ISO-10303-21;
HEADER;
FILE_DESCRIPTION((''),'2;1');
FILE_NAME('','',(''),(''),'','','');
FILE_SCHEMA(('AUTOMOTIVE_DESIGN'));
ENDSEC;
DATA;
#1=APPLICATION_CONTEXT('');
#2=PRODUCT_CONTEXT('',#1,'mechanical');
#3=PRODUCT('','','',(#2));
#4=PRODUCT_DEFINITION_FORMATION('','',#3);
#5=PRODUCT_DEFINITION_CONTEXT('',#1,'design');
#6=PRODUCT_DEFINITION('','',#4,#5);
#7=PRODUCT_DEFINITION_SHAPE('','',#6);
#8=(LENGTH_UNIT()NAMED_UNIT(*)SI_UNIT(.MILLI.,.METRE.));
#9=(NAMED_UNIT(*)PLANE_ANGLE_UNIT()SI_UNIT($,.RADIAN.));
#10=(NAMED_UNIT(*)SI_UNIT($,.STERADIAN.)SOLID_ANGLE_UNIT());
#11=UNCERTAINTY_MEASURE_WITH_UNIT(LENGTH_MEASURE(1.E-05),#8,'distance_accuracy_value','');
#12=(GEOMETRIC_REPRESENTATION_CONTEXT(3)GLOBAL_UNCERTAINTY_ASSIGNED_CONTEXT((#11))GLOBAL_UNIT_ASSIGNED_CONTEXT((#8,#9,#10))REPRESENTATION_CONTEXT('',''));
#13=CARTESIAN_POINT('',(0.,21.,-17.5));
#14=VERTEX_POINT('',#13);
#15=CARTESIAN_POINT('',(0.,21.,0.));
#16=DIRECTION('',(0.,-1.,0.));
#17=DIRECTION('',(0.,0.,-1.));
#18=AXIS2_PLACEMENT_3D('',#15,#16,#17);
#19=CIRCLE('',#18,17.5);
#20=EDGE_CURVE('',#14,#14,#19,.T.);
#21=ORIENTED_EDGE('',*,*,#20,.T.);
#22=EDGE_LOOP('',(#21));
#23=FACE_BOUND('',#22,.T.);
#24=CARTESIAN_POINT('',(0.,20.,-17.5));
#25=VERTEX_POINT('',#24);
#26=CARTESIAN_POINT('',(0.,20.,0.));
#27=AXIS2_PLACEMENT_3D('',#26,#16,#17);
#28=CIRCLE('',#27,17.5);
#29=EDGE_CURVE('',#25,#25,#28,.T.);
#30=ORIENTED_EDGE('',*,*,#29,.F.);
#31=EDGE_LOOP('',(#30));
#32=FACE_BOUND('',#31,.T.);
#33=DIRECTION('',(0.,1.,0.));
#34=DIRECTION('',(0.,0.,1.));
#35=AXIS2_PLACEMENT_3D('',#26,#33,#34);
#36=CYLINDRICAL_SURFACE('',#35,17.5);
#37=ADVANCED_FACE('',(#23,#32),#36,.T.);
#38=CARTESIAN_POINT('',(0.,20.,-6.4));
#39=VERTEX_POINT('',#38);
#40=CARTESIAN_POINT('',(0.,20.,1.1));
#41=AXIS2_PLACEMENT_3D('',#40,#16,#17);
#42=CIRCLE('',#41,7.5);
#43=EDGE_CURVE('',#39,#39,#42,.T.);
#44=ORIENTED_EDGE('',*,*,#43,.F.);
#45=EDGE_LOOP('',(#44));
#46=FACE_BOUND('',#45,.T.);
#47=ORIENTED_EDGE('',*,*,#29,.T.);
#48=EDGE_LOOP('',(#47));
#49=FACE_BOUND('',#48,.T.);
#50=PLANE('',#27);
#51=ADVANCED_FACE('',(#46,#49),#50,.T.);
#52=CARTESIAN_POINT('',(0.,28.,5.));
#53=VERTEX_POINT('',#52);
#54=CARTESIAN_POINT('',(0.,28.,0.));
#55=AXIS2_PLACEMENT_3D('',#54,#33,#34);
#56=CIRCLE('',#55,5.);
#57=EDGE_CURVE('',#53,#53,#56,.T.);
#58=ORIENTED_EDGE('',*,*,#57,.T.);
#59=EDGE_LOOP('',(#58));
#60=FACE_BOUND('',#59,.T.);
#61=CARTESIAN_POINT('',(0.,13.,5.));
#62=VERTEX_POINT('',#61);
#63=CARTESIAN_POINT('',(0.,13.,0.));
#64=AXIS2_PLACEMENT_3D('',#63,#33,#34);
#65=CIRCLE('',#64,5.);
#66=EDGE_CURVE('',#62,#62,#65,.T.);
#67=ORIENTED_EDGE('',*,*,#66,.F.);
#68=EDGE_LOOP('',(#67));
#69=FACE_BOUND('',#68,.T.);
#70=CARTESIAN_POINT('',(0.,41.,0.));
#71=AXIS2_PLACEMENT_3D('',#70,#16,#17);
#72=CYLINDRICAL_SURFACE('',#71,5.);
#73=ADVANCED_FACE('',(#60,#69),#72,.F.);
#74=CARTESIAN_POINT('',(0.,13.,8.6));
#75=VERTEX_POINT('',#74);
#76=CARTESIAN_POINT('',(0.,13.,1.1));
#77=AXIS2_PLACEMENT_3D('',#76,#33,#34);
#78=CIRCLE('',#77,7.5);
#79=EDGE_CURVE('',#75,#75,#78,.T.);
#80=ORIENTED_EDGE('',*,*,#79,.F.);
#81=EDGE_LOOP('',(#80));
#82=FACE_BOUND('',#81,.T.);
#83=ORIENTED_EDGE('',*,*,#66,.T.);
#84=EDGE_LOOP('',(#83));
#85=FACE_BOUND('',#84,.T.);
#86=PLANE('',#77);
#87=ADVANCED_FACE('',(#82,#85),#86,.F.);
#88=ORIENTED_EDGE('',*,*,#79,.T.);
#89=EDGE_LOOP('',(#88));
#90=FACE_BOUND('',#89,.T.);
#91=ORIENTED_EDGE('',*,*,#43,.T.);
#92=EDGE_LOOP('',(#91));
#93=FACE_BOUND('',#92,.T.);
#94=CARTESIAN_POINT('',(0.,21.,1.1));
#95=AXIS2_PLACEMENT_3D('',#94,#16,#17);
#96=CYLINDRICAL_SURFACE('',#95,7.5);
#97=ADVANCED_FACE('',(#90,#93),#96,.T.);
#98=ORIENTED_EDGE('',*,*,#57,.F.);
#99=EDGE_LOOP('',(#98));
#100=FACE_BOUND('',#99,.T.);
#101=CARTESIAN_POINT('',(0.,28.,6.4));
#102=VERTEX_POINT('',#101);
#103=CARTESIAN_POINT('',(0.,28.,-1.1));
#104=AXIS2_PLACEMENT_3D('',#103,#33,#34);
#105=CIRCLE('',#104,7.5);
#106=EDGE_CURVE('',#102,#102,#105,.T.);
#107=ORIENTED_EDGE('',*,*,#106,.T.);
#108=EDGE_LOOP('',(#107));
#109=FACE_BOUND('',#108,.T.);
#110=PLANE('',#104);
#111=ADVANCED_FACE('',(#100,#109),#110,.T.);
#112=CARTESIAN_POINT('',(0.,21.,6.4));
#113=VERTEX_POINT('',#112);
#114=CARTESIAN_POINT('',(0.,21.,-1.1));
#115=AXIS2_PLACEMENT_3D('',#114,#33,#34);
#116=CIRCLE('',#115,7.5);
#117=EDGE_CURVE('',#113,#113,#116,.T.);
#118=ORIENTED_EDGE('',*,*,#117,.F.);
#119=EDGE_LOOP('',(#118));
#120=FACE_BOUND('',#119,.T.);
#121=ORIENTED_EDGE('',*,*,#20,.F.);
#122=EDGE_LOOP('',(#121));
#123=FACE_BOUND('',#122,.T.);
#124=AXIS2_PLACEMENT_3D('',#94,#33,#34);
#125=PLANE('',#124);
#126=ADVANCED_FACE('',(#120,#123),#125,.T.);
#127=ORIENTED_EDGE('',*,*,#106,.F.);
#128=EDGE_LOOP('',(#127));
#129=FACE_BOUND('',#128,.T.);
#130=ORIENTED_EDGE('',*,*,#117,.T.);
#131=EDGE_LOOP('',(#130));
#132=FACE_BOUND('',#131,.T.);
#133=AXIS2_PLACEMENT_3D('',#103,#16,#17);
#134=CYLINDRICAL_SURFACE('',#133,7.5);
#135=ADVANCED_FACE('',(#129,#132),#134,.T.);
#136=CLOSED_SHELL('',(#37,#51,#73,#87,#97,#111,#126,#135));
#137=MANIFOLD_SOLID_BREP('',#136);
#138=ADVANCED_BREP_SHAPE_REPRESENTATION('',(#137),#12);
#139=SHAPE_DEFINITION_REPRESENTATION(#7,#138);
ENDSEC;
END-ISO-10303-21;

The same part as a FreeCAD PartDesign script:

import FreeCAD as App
import Part
import Sketcher

doc = App.newDocument("Part")
body = doc.addObject("PartDesign::Body", "Body")

# Sketch on XZ plane
sketch1 = doc.addObject("Sketcher::SketchObject", "Sketch")
body.addObject(sketch1)
sketch1.AttachmentSupport = (doc.XZ_Plane, [""])
sketch1.MapMode = "FlatFace"
sketch1.addGeometry(Part.Circle(App.Vector(0, 0, 0), App.Vector(0, 0, 1), 5), False)
sketch1.addConstraint(Sketcher.Constraint("Coincident", 0, 3, -1, 1))
sketch1.addConstraint(Sketcher.Constraint("Diameter", 0, 10.0))
pad1 = doc.addObject("PartDesign::Pad", "Pad")
body.addObject(pad1)
pad1.Profile = sketch1
pad1.Length = 13
pad1.Reversed = True

# Sketch on XZ plane
sketch2 = doc.addObject("Sketcher::SketchObject", "Sketch001")
body.addObject(sketch2)
sketch2.AttachmentSupport = (doc.XZ_Plane, [""])
sketch2.MapMode = "FlatFace"
sketch2.AttachmentOffset = App.Placement(App.Vector(0, 0, -13), App.Rotation())
sketch2.addGeometry(Part.Circle(App.Vector(0, 1, 0), App.Vector(0, 0, 1), 8), False)
sketch2.addConstraint(Sketcher.Constraint("PointOnObject", 0, 3, -2))
sketch2.addConstraint(Sketcher.Constraint("Diameter", 0, 15.0))
sketch2.addConstraint(Sketcher.Constraint("DistanceY", -1, 1, 0, 3, 1.1))
pad2 = doc.addObject("PartDesign::Pad", "Pad001")
body.addObject(pad2)
pad2.Profile = sketch2
pad2.Length = 8
pad2.Reversed = True

# Sketch on XZ plane
sketch3 = doc.addObject("Sketcher::SketchObject", "Sketch002")
body.addObject(sketch3)
sketch3.AttachmentSupport = (doc.XZ_Plane, [""])
sketch3.MapMode = "FlatFace"
sketch3.AttachmentOffset = App.Placement(App.Vector(0, 0, -21), App.Rotation())
sketch3.addGeometry(Part.Circle(App.Vector(0, -1, 0), App.Vector(0, 0, 1), 8), False)
sketch3.addConstraint(Sketcher.Constraint("PointOnObject", 0, 3, -2))
sketch3.addConstraint(Sketcher.Constraint("Diameter", 0, 15.0))
sketch3.addConstraint(Sketcher.Constraint("DistanceY", 0, 3, -1, 1, 1.1))
pad3 = doc.addObject("PartDesign::Pad", "Pad002")
body.addObject(pad3)
pad3.Profile = sketch3
pad3.Length = 7
pad3.Reversed = True

# Sketch on XZ plane
sketch4 = doc.addObject("Sketcher::SketchObject", "Sketch003")
body.addObject(sketch4)
sketch4.AttachmentSupport = (doc.XZ_Plane, [""])
sketch4.MapMode = "FlatFace"
sketch4.AttachmentOffset = App.Placement(App.Vector(0, 0, -28), App.Rotation())
sketch4.addGeometry(Part.Circle(App.Vector(0, 0, 0), App.Vector(0, 0, 1), 5), False)
sketch4.addConstraint(Sketcher.Constraint("Coincident", 0, 3, -1, 1))
sketch4.addConstraint(Sketcher.Constraint("Diameter", 0, 10.0))
pad4 = doc.addObject("PartDesign::Pad", "Pad003")
body.addObject(pad4)
pad4.Profile = sketch4
pad4.Length = 13
pad4.Reversed = True

# Sketch on XZ plane
sketch5 = doc.addObject("Sketcher::SketchObject", "Sketch004")
body.addObject(sketch5)
sketch5.AttachmentSupport = (doc.XZ_Plane, [""])
sketch5.MapMode = "FlatFace"
sketch5.addGeometry(Part.Circle(App.Vector(0, 0, 0), App.Vector(0, 0, 1), 5), False)
sketch5.addConstraint(Sketcher.Constraint("Coincident", 0, 3, -1, 1))
sketch5.addConstraint(Sketcher.Constraint("Diameter", 0, 10.0))
pocket1 = doc.addObject("PartDesign::Pocket", "Pocket")
body.addObject(pocket1)
pocket1.Profile = sketch5
pocket1.Type = "ThroughAll"

# Sketch on XZ plane
sketch6 = doc.addObject("Sketcher::SketchObject", "Sketch005")
body.addObject(sketch6)
sketch6.AttachmentSupport = (doc.XZ_Plane, [""])
sketch6.MapMode = "FlatFace"
sketch6.AttachmentOffset = App.Placement(App.Vector(0, 0, -21), App.Rotation())
sketch6.addGeometry(Part.Circle(App.Vector(0, 0, 0), App.Vector(0, 0, 1), 18), False)
sketch6.addConstraint(Sketcher.Constraint("Coincident", 0, 3, -1, 1))
sketch6.addConstraint(Sketcher.Constraint("Diameter", 0, 35.0))
pad5 = doc.addObject("PartDesign::Pad", "Pad004")
body.addObject(pad5)
pad5.Profile = sketch6
pad5.Length = 1

# Sketch on XZ plane
sketch7 = doc.addObject("Sketcher::SketchObject", "Sketch006")
body.addObject(sketch7)
sketch7.AttachmentSupport = (doc.XZ_Plane, [""])
sketch7.MapMode = "FlatFace"
sketch7.AttachmentOffset = App.Placement(App.Vector(0, 0, -21), App.Rotation())
sketch7.addGeometry(Part.Circle(App.Vector(0, 0, 0), App.Vector(0, 0, 1), 5), False)
sketch7.addConstraint(Sketcher.Constraint("Coincident", 0, 3, -1, 1))
sketch7.addConstraint(Sketcher.Constraint("Diameter", 0, 10.0))
pocket2 = doc.addObject("PartDesign::Pocket", "Pocket001")
body.addObject(pocket2)
pocket2.Profile = sketch7
pocket2.Type = "ThroughAll"
pocket2.Reversed = True

doc.recompute()
